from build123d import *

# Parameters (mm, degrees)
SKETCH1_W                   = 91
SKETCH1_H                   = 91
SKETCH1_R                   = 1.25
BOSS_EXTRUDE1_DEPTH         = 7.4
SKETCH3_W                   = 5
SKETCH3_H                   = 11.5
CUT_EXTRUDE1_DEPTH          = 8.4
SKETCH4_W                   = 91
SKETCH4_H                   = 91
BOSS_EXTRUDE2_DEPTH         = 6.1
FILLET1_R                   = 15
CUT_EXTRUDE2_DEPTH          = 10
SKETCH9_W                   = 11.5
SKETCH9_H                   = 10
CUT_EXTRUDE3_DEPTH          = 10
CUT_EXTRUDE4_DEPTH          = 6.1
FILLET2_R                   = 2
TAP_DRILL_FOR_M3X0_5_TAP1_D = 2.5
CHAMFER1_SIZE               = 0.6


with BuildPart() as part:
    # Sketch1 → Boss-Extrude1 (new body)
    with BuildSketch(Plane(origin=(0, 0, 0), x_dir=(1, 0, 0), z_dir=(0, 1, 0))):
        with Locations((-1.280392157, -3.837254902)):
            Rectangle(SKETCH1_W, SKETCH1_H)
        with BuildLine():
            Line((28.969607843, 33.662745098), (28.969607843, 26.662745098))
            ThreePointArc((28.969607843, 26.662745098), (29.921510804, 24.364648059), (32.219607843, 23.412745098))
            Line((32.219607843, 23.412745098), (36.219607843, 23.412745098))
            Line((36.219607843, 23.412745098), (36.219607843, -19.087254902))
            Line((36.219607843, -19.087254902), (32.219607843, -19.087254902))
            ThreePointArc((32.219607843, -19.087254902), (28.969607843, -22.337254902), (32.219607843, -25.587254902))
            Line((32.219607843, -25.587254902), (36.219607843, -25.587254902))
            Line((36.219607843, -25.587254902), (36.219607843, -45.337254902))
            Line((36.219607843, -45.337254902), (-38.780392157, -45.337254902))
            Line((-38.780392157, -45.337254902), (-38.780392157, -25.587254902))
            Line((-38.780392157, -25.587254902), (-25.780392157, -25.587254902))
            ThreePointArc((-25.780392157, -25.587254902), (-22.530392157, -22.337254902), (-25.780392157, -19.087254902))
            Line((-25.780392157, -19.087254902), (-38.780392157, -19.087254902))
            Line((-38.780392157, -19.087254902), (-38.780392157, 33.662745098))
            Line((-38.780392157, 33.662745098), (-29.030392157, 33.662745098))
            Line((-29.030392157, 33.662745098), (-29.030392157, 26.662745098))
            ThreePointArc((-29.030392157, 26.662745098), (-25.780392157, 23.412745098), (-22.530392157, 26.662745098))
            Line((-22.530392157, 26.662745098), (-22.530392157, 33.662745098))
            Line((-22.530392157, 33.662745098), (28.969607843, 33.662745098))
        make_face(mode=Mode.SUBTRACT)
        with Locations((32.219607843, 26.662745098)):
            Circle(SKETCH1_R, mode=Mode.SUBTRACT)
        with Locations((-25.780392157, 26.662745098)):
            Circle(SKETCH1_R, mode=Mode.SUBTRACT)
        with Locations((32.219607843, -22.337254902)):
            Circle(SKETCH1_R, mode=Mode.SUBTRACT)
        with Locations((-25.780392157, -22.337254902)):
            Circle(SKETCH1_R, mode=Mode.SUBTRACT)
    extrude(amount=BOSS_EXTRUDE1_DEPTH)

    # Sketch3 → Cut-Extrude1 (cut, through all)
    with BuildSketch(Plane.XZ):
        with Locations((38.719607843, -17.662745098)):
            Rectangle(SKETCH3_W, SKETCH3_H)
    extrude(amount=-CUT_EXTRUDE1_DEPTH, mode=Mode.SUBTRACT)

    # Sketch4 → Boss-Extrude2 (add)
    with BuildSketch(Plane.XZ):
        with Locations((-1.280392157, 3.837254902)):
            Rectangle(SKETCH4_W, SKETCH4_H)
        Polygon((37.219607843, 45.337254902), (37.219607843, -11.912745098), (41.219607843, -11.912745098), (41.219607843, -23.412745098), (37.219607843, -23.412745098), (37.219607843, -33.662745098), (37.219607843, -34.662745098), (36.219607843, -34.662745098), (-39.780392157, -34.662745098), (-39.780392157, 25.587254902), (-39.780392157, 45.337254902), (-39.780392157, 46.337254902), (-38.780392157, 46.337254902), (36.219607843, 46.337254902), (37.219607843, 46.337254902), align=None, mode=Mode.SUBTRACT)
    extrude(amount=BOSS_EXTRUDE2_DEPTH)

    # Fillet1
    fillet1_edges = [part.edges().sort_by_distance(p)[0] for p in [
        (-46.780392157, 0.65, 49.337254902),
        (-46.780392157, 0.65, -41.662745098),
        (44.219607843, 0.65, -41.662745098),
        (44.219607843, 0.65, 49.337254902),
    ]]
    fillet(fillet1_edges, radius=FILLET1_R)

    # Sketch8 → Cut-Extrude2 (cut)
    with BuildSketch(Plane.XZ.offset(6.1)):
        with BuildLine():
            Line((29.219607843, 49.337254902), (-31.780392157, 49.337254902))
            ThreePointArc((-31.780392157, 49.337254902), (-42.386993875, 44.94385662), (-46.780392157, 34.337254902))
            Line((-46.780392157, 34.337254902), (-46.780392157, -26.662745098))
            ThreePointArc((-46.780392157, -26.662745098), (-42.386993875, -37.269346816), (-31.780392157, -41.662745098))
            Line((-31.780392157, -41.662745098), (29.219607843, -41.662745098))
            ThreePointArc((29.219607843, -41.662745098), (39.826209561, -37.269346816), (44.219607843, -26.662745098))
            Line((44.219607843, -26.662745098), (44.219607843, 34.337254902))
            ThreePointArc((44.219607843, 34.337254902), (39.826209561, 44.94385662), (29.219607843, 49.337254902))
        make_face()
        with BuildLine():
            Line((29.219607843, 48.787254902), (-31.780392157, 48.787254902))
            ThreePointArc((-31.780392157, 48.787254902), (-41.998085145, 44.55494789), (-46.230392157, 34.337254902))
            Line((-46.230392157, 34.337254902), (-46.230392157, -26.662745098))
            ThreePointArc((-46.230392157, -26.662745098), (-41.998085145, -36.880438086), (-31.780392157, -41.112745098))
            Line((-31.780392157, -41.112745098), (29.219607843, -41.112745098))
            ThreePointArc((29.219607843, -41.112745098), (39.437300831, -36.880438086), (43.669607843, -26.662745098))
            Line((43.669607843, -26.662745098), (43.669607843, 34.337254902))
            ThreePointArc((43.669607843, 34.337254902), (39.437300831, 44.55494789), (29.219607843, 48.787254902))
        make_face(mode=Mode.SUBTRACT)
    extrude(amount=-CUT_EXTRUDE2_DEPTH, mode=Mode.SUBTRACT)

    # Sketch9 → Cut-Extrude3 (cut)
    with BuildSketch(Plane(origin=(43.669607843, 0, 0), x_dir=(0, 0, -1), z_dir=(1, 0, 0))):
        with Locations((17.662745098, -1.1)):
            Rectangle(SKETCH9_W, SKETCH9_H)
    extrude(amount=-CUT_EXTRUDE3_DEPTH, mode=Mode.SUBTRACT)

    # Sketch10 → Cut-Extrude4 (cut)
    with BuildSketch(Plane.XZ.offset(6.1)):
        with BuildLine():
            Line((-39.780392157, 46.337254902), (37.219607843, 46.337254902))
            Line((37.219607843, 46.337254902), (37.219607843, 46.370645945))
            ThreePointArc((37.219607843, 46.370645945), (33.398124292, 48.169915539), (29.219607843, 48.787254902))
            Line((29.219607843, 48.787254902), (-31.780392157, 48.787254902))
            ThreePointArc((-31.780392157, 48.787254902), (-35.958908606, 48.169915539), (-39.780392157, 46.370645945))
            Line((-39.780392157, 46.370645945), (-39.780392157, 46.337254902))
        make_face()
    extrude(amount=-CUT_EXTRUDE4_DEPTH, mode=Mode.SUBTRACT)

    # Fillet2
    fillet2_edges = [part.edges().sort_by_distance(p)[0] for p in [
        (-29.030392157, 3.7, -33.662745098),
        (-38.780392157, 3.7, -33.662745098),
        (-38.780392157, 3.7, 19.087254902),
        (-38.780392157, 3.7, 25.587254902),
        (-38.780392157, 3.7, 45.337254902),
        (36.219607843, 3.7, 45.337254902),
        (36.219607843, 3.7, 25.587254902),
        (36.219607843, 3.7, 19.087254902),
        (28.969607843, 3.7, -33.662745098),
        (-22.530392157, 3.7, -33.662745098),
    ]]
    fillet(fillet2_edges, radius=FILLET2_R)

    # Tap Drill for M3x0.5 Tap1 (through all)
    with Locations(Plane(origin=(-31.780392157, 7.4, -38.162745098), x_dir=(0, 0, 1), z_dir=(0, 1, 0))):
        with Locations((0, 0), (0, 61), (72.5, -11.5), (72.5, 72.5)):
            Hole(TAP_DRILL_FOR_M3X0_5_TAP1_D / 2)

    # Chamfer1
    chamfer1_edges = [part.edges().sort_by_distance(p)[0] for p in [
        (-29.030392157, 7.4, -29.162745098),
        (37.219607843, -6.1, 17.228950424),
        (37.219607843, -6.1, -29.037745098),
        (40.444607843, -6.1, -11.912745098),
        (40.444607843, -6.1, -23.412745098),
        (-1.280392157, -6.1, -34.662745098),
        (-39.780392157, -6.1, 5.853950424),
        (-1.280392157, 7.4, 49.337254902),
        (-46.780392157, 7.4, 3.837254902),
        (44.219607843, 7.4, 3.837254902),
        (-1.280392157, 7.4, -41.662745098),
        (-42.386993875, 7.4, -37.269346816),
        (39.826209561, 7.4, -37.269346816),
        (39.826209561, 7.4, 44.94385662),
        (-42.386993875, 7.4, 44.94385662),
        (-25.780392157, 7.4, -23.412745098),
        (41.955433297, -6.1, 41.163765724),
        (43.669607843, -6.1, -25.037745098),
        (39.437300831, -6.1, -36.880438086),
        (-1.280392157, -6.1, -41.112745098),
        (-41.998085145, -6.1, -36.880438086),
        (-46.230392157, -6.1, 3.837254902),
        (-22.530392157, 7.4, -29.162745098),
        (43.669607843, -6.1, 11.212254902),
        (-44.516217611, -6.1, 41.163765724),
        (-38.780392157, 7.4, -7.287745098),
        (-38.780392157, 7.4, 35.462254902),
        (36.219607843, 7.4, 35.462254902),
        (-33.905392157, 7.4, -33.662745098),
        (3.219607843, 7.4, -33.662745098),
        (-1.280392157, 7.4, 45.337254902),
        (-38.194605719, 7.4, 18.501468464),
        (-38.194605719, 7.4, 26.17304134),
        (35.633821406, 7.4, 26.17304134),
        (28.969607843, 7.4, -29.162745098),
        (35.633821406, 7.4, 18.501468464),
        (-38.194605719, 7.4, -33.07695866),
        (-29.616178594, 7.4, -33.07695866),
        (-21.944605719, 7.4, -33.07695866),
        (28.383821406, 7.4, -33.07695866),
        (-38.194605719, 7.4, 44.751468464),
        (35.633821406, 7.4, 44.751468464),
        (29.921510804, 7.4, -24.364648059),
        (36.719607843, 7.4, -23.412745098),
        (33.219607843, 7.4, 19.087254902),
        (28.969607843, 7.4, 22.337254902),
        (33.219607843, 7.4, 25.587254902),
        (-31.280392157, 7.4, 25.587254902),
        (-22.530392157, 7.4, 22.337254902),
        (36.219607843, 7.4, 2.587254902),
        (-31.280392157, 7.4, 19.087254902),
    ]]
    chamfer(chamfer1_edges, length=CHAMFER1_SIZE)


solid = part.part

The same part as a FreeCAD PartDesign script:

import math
import FreeCAD as App
import Part
import Sketcher
from FreeCAD import Vector


def edges_at(feature, points):
    """Names of the edges that pass closest to the given points."""
    edges = feature.Shape.Edges
    near = lambda p: min(range(len(edges)), key=lambda i: edges[i].distToShape(Part.Vertex(*p))[0])
    return sorted({f"Edge{near(p) + 1}" for p in points})


def add_polygon(sketch, points):
    """Adds a closed chain of lines whose ends are joined by coincident constraints."""
    first, n = sketch.GeometryCount, len(points)
    for a, b in zip(points, points[1:] + points[:1]):
        sketch.addGeometry(Part.LineSegment(App.Vector(*a, 0), App.Vector(*b, 0)), False)
    for i in range(n):
        sketch.addConstraint(Sketcher.Constraint("Coincident", first + i, 2, first + (i + 1) % n, 1))

doc = App.newDocument("Part")
params = doc.addObject("Spreadsheet::Sheet", "Params")
for row, (alias, value) in enumerate([
    ("sketch1_diameter", "2.5 mm"),
    ("sketch1_width", "91 mm"),
    ("sketch1_width2", "4 mm"),
    ("sketch1_width3", "75 mm"),
    ("sketch1_width4", "13 mm"),
    ("pad1_length", "7.4 mm"),
    ("sketch2_width", "5 mm"),
    ("sketch2_height", "11.5 mm"),
    ("sketch3_width", "91 mm"),
    ("sketch3_width2", "4 mm"),
    ("sketch3_width3", "77 mm"),
    ("sketch3_height", "81 mm"),
    ("sketch3_height2", "11.5 mm"),
    ("pad2_length", "6.1 mm"),
    ("fillet_radius", "15 mm"),
    ("sketch4_radius", "15 mm"),
    ("sketch4_width", "61 mm"),
    ("sketch4_radius2", "14.45 mm"),
    ("pocket2_length", "10 mm"),
    ("sketch5_width", "10 mm"),
    ("sketch5_height", "11.5 mm"),
    ("pocket3_length", "10 mm"),
    ("sketch6_width", "77 mm"),
    ("sketch6_width2", "61 mm"),
    ("sketch6_radius", "14.45 mm"),
    ("pocket4_length", "6.1 mm"),
    ("fillet2_radius", "2 mm"),
    ("sketch7_diameter", "2.5 mm"),
    ("hole_diameter", "2.5 mm"),
    ("chamfer_size", "0.6 mm"),
], start=1):
    params.set(f"A{row}", alias)
    params.set(f"B{row}", "=" + value)
    params.setAlias(f"B{row}", alias)

body = doc.addObject("PartDesign::Body", "Body")

sketch1 = body.newObject("Sketcher::SketchObject", "Sketch")
sketch1.AttachmentSupport = (doc.getObject("XZ_Plane"), [""])
sketch1.MapMode = "FlatFace"
add_polygon(sketch1, [(-46.8, -41.7), (-46.8, 49.3), (44.2, 49.3), (44.2, -41.7)])
sketch1.addGeometry(Part.Circle(Vector(-25.8, 22.3, 0), Vector(0, 0, 1), 1.2), False)
sketch1.addGeometry(Part.Circle(Vector(32.2, 22.3, 0), Vector(0, 0, 1), 1.2), False)
sketch1.addGeometry(Part.Circle(Vector(-25.8, -26.7, 0), Vector(0, 0, 1), 1.2), False)
sketch1.addGeometry(Part.LineSegment(Vector(-22.5, -33.7, 0), Vector(29, -33.7, 0)), False)
sketch1.addGeometry(Part.LineSegment(Vector(29, -33.7, 0), Vector(29, -26.7, 0)), False)
sketch1.addGeometry(Part.ArcOfCircle(Part.Circle(Vector(32.2, -26.7, 0), Vector(0, 0, 1), 3.2), math.radians(90), math.radians(180)), False)
sketch1.addGeometry(Part.LineSegment(Vector(32.2, -23.4, 0), Vector(36.2, -23.4, 0)), False)
sketch1.addGeometry(Part.LineSegment(Vector(36.2, -23.4, 0), Vector(36.2, 19.1, 0)), False)
sketch1.addGeometry(Part.LineSegment(Vector(36.2, 19.1, 0), Vector(32.2, 19.1, 0)), False)
sketch1.addGeometry(Part.ArcOfCircle(Part.Circle(Vector(32.2, 22.3, 0), Vector(0, 0, 1), 3.2), math.radians(90), math.radians(270)), False)
sketch1.addGeometry(Part.LineSegment(Vector(32.2, 25.6, 0), Vector(36.2, 25.6, 0)), False)
sketch1.addGeometry(Part.LineSegment(Vector(36.2, 25.6, 0), Vector(36.2, 45.3, 0)), False)
sketch1.addGeometry(Part.LineSegment(Vector(36.2, 45.3, 0), Vector(-38.8, 45.3, 0)), False)
sketch1.addGeometry(Part.LineSegment(Vector(-38.8, 45.3, 0), Vector(-38.8, 25.6, 0)), False)
sketch1.addGeometry(Part.LineSegment(Vector(-38.8, 25.6, 0), Vector(-25.8, 25.6, 0)), False)
sketch1.addGeometry(Part.ArcOfCircle(Part.Circle(Vector(-25.8, 22.3, 0), Vector(0, 0, 1), 3.2), math.radians(-90), math.radians(90)), False)
sketch1.addGeometry(Part.LineSegment(Vector(-25.8, 19.1, 0), Vector(-38.8, 19.1, 0)), False)
sketch1.addGeometry(Part.LineSegment(Vector(-38.8, 19.1, 0), Vector(-38.8, -33.7, 0)), False)
sketch1.addGeometry(Part.LineSegment(Vector(-38.8, -33.7, 0), Vector(-29, -33.7, 0)), False)
sketch1.addGeometry(Part.LineSegment(Vector(-29, -33.7, 0), Vector(-29, -26.7, 0)), False)
sketch1.addGeometry(Part.ArcOfCircle(Part.Circle(Vector(-25.8, -26.7, 0), Vector(0, 0, 1), 3.2), math.radians(0), math.radians(180)), False)
sketch1.addGeometry(Part.LineSegment(Vector(-22.5, -26.7, 0), Vector(-22.5, -33.7, 0)), False)
sketch1.addGeometry(Part.Circle(Vector(32.2, -26.7, 0), Vector(0, 0, 1), 1.2), False)
sketch1.addConstraint(Sketcher.Constraint("Coincident", 7, 2, 8, 1))
sketch1.addConstraint(Sketcher.Constraint("Tangent", 8, 2, 9, 2))
sketch1.addConstraint(Sketcher.Constraint("Tangent", 9, 1, 10, 1))
sketch1.addConstraint(Sketcher.Constraint("Coincident", 10, 2, 11, 1))
sketch1.addConstraint(Sketcher.Constraint("Coincident", 11, 2, 12, 1))
sketch1.addConstraint(Sketcher.Constraint("Tangent", 12, 2, 13, 2))
sketch1.addConstraint(Sketcher.Constraint("Tangent", 13, 1, 14, 1))
sketch1.addConstraint(Sketcher.Constraint("Coincident", 14, 2, 15, 1))
sketch1.addConstraint(Sketcher.Constraint("Coincident", 15, 2, 16, 1))
sketch1.addConstraint(Sketcher.Constraint("Coincident", 16, 2, 17, 1))
sketch1.addConstraint(Sketcher.Constraint("Coincident", 17, 2, 18, 1))
sketch1.addConstraint(Sketcher.Constraint("Tangent", 18, 2, 19, 2))
sketch1.addConstraint(Sketcher.Constraint("Tangent", 19, 1, 20, 1))
sketch1.addConstraint(Sketcher.Constraint("Coincident", 20, 2, 21, 1))
sketch1.addConstraint(Sketcher.Constraint("Coincident", 21, 2, 22, 1))
sketch1.addConstraint(Sketcher.Constraint("Coincident", 22, 2, 23, 1))
sketch1.addConstraint(Sketcher.Constraint("Tangent", 23, 2, 24, 2))
sketch1.addConstraint(Sketcher.Constraint("Tangent", 24, 1, 25, 1))
sketch1.addConstraint(Sketcher.Constraint("Coincident", 25, 2, 7, 1))
sketch1.addConstraint(Sketcher.Constraint("Vertical", 0))
sketch1.addConstraint(Sketcher.Constraint("Horizontal", 1))
sketch1.addConstraint(Sketcher.Constraint("Vertical", 2))
sketch1.addConstraint(Sketcher.Constraint("Horizontal", 3))
sketch1.addConstraint(Sketcher.Constraint("Horizontal", 7))
sketch1.addConstraint(Sketcher.Constraint("Vertical", 8))
sketch1.addConstraint(Sketcher.Constraint("Horizontal", 10))
sketch1.addConstraint(Sketcher.Constraint("Vertical", 11))
sketch1.addConstraint(Sketcher.Constraint("Horizontal", 12))
sketch1.addConstraint(Sketcher.Constraint("Horizontal", 14))
sketch1.addConstraint(Sketcher.Constraint("Vertical", 15))
sketch1.addConstraint(Sketcher.Constraint("Horizontal", 16))
sketch1.addConstraint(Sketcher.Constraint("Vertical", 17))
sketch1.addConstraint(Sketcher.Constraint("Horizontal", 18))
sketch1.addConstraint(Sketcher.Constraint("Horizontal", 20))
sketch1.addConstraint(Sketcher.Constraint("Vertical", 21))
sketch1.addConstraint(Sketcher.Constraint("Horizontal", 22))
sketch1.addConstraint(Sketcher.Constraint("Vertical", 23))
sketch1.addConstraint(Sketcher.Constraint("Vertical", 25))
sketch1.addConstraint(Sketcher.Constraint("Coincident", 13, 3, 5, 3))
sketch1.addConstraint(Sketcher.Constraint("Coincident", 19, 3, 4, 3))
sketch1.addConstraint(Sketcher.Constraint("Coincident", 24, 3, 6, 3))
sketch1.addConstraint(Sketcher.Constraint("Coincident", 26, 3, 9, 3))
sketch1.addConstraint(Sketcher.Constraint("Equal", 4, 5))
sketch1.addConstraint(Sketcher.Constraint("Equal", 5, 6))
sketch1.addConstraint(Sketcher.Constraint("Equal", 9, 13))
sketch1.addConstraint(Sketcher.Constraint("Equal", 13, 19))
sketch1.addConstraint(Sketcher.Constraint("Equal", 19, 24))
sketch1.addConstraint(Sketcher.Constraint("Equal", 6, 26))
sketch1.addConstraint(Sketcher.Constraint("Horizontal", 4, 3, 5, 3))
sketch1.addConstraint(Sketcher.Constraint("Horizontal", 6, 3, 9, 3))
sketch1.addConstraint(Sketcher.Constraint("Horizontal", 7, 2, 21, 2))
sketch1.addConstraint(Sketcher.Constraint("Vertical", 4, 3, 6, 3))
sketch1.addConstraint(Sketcher.Constraint("Vertical", 5, 3, 9, 3))
sketch1.addConstraint(Sketcher.Constraint("Vertical", 11, 2, 14, 2))
sketch1.addConstraint(Sketcher.Constraint("Vertical", 17, 2, 20, 2))
sketch1.addConstraint(Sketcher.Constraint("Equal", 3, 0))
sketch1.addConstraint(Sketcher.Constraint("Diameter", 4, 2.5))
sketch1.addConstraint(Sketcher.Constraint("DistanceX", 1, 1, 1, 2, 91.0))
sketch1.addConstraint(Sketcher.Constraint("DistanceX", 10, 1, 10, 2, 4.0))
sketch1.addConstraint(Sketcher.Constraint("DistanceX", 16, 2, 16, 1, 75.0))
sketch1.addConstraint(Sketcher.Constraint("DistanceX", 18, 1, 18, 2, 13.0))
sketch1.addConstraint(Sketcher.Constraint("DistanceY", 8, 1, 8, 2, 7.0))
sketch1.addConstraint(Sketcher.Constraint("Radius", 9, 3.25))
sketch1.addConstraint(Sketcher.Constraint("DistanceY", 11, 1, 11, 2, 42.5))
sketch1.addConstraint(Sketcher.Constraint("DistanceX", 0, 2, 4, 3, 21.0))
sketch1.addConstraint(Sketcher.Constraint("DistanceY", 4, 3, 0, 2, 27.0))
sketch1.addConstraint(Sketcher.Constraint("DistanceY", 15, 2, 1, 2, 4.0))
sketch1.addConstraint(Sketcher.Constraint("DistanceX", 4, 3, -1, 1, 25.780392))
sketch1.addConstraint(Sketcher.Constraint("DistanceY", -1, 1, 4, 3, 22.337255))
sketch1.setExpression("Constraints[60]", "Params.sketch1_diameter")
sketch1.setExpression("Constraints[61]", "Params.sketch1_width")
sketch1.setExpression("Constraints[62]", "Params.sketch1_width2")
sketch1.setExpression("Constraints[63]", "Params.sketch1_width3")
sketch1.setExpression("Constraints[64]", "Params.sketch1_width4")
pad1 = body.newObject("PartDesign::Pad", "Pad")
pad1.Profile = sketch1
pad1.setExpression("Length", "Params.pad1_length")
pad1.Reversed = True

sketch2 = body.newObject("Sketcher::SketchObject", "Sketch001")
sketch2.AttachmentSupport = (doc.getObject("XZ_Plane"), [""])
sketch2.MapMode = "FlatFace"
add_polygon(sketch2, [(36, -12), (36, -23), (41, -23), (41, -12)])
sketch2.addConstraint(Sketcher.Constraint("Vertical", 0))
sketch2.addConstraint(Sketcher.Constraint("Horizontal", 1))
sketch2.addConstraint(Sketcher.Constraint("Vertical", 2))
sketch2.addConstraint(Sketcher.Constraint("Horizontal", 3))
sketch2.addConstraint(Sketcher.Constraint("DistanceX", 1, 1, 1, 2, 5.0))
sketch2.addConstraint(Sketcher.Constraint("DistanceY", 0, 2, 0, 1, 11.5))
sketch2.addConstraint(Sketcher.Constraint("DistanceX", -1, 1, 0, 2, 36.219608))
sketch2.addConstraint(Sketcher.Constraint("DistanceY", 0, 2, -1, 1, 23.412745))
sketch2.setExpression("Constraints[8]", "Params.sketch2_width")
sketch2.setExpression("Constraints[9]", "Params.sketch2_height")
pocket1 = body.newObject("PartDesign::Pocket", "Pocket")
pocket1.Profile = sketch2
pocket1.Type = "ThroughAll"

sketch3 = body.newObject("Sketcher::SketchObject", "Sketch002")
sketch3.AttachmentSupport = (doc.getObject("XZ_Plane"), [""])
sketch3.MapMode = "FlatFace"
add_polygon(sketch3, [(-46.8, 49.3), (-46.8, -41.7), (44.2, -41.7), (44.2, 49.3)])
add_polygon(sketch3, [(37.2, 46.3), (37.2, -11.9), (41.2, -11.9), (41.2, -23.4), (37.2, -23.4), (37.2, -34.7), (-39.8, -34.7), (-39.8, 46.3)])
sketch3.addConstraint(Sketcher.Constraint("Vertical", 0))
sketch3.addConstraint(Sketcher.Constraint("Horizontal", 1))
sketch3.addConstraint(Sketcher.Constraint("Vertical", 2))
sketch3.addConstraint(Sketcher.Constraint("Horizontal", 3))
sketch3.addConstraint(Sketcher.Constraint("Vertical", 4))
sketch3.addConstraint(Sketcher.Constraint("Horizontal", 5))
sketch3.addConstraint(Sketcher.Constraint("Vertical", 6))
sketch3.addConstraint(Sketcher.Constraint("Horizontal", 7))
sketch3.addConstraint(Sketcher.Constraint("Vertical", 8))
sketch3.addConstraint(Sketcher.Constraint("Horizontal", 9))
sketch3.addConstraint(Sketcher.Constraint("Vertical", 10))
sketch3.addConstraint(Sketcher.Constraint("Horizontal", 11))
sketch3.addConstraint(Sketcher.Constraint("Vertical", 4, 2, 7, 2))
sketch3.addConstraint(Sketcher.Constraint("Equal", 3, 0))
sketch3.addConstraint(Sketcher.Constraint("DistanceX", 1, 1, 1, 2, 91.0))
sketch3.addConstraint(Sketcher.Constraint("DistanceX", 5, 1, 5, 2, 4.0))
sketch3.addConstraint(Sketcher.Constraint("DistanceX", 9, 2, 9, 1, 77.0))
sketch3.addConstraint(Sketcher.Constraint("DistanceY", 10, 1, 10, 2, 81.0))
sketch3.addConstraint(Sketcher.Constraint("DistanceY", 6, 2, 6, 1, 11.5))
sketch3.addConstraint(Sketcher.Constraint("DistanceX", 4, 2, 1, 2, 7.0))
sketch3.addConstraint(Sketcher.Constraint("DistanceY", 1, 2, 8, 2, 7.0))
sketch3.addConstraint(Sketcher.Constraint("DistanceY", 4, 2, 4, 1, 58.25))
sketch3.addConstraint(Sketcher.Constraint("DistanceX", 0, 2, -1, 1, 46.780392))
sketch3.addConstraint(Sketcher.Constraint("DistanceY", 0, 2, -1, 1, 41.662745))
sketch3.setExpression("Constraints[26]", "Params.sketch3_width")
sketch3.setExpression("Constraints[27]", "Params.sketch3_width2")
sketch3.setExpression("Constraints[28]", "Params.sketch3_width3")
sketch3.setExpression("Constraints[29]", "Params.sketch3_height")
sketch3.setExpression("Constraints[30]", "Params.sketch3_height2")
pad2 = body.newObject("PartDesign::Pad", "Pad001")
pad2.Profile = sketch3
pad2.setExpression("Length", "Params.pad2_length")
doc.recompute()

fillet = body.newObject("PartDesign::Fillet", "Fillet")
fillet.Base = (pad2, edges_at(pad2, [
    (-46.78, 0.65, 49.337),
    (-46.78, 0.65, -41.663),
    (44.22, 0.65, -41.663),
    (44.22, 0.65, 49.337),
]))
fillet.setExpression("Radius", "Params.fillet_radius")

sketch4 = body.newObject("Sketcher::SketchObject", "Sketch003")
sketch4.AttachmentSupport = (doc.getObject("XZ_Plane"), [""])
sketch4.MapMode = "FlatFace"
sketch4.AttachmentOffset = App.Placement(Vector(0, 0, 6.1), App.Rotation())
sketch4.addGeometry(Part.LineSegment(Vector(29, 49, 0), Vector(-32, 49, 0)), False)
sketch4.addGeometry(Part.ArcOfCircle(Part.Circle(Vector(-32, 34, 0), Vector(0, 0, 1), 15), math.radians(90), math.radians(180)), False)
sketch4.addGeometry(Part.LineSegment(Vector(-47, 34, 0), Vector(-47, -27, 0)), False)
sketch4.addGeometry(Part.ArcOfCircle(Part.Circle(Vector(-32, -27, 0), Vector(0, 0, 1), 15), math.radians(180), math.radians(270)), False)
sketch4.addGeometry(Part.LineSegment(Vector(-32, -42, 0), Vector(29, -42, 0)), False)
sketch4.addGeometry(Part.ArcOfCircle(Part.Circle(Vector(29, -27, 0), Vector(0, 0, 1), 15), math.radians(-90), math.radians(0)), False)
sketch4.addGeometry(Part.LineSegment(Vector(44, -27, 0), Vector(44, 34, 0)), False)
sketch4.addGeometry(Part.ArcOfCircle(Part.Circle(Vector(29, 34, 0), Vector(0, 0, 1), 15), math.radians(0), math.radians(90)), False)
sketch4.addGeometry(Part.LineSegment(Vector(-32, 49, 0), Vector(29, 49, 0)), False)
sketch4.addGeometry(Part.ArcOfCircle(Part.Circle(Vector(29, 34, 0), Vector(0, 0, 1), 14), math.radians(0), math.radians(90)), False)
sketch4.addGeometry(Part.LineSegment(Vector(44, 34, 0), Vector(44, -27, 0)), False)
sketch4.addGeometry(Part.ArcOfCircle(Part.Circle(Vector(29, -27, 0), Vector(0, 0, 1), 14), math.radians(-90), math.radians(0)), False)
sketch4.addGeometry(Part.LineSegment(Vector(29, -41, 0), Vector(-32, -41, 0)), False)
sketch4.addGeometry(Part.ArcOfCircle(Part.Circle(Vector(-32, -27, 0), Vector(0, 0, 1), 14), math.radians(180), math.radians(270)), False)
sketch4.addGeometry(Part.LineSegment(Vector(-46, -27, 0), Vector(-46, 34, 0)), False)
sketch4.addGeometry(Part.ArcOfCircle(Part.Circle(Vector(-32, 34, 0), Vector(0, 0, 1), 14), math.radians(90), math.radians(180)), False)
sketch4.addConstraint(Sketcher.Constraint("Tangent", 0, 2, 1, 1))
sketch4.addConstraint(Sketcher.Constraint("Tangent", 1, 2, 2, 1))
sketch4.addConstraint(Sketcher.Constraint("Tangent", 2, 2, 3, 1))
sketch4.addConstraint(Sketcher.Constraint("Tangent", 3, 2, 4, 1))
sketch4.addConstraint(Sketcher.Constraint("Tangent", 4, 2, 5, 1))
sketch4.addConstraint(Sketcher.Constraint("Tangent", 5, 2, 6, 1))
sketch4.addConstraint(Sketcher.Constraint("Tangent", 6, 2, 7, 1))
sketch4.addConstraint(Sketcher.Constraint("Tangent", 7, 2, 0, 1))
sketch4.addConstraint(Sketcher.Constraint("Tangent", 8, 2, 9, 2))
sketch4.addConstraint(Sketcher.Constraint("Tangent", 9, 1, 10, 1))
sketch4.addConstraint(Sketcher.Constraint("Tangent", 10, 2, 11, 2))
sketch4.addConstraint(Sketcher.Constraint("Tangent", 11, 1, 12, 1))
sketch4.addConstraint(Sketcher.Constraint("Tangent", 12, 2, 13, 2))
sketch4.addConstraint(Sketcher.Constraint("Tangent", 13, 1, 14, 1))
sketch4.addConstraint(Sketcher.Constraint("Tangent", 14, 2, 15, 2))
sketch4.addConstraint(Sketcher.Constraint("Tangent", 15, 1, 8, 1))
sketch4.addConstraint(Sketcher.Constraint("Horizontal", 0))
sketch4.addConstraint(Sketcher.Constraint("Vertical", 2))
sketch4.addConstraint(Sketcher.Constraint("Horizontal", 4))
sketch4.addConstraint(Sketcher.Constraint("Vertical", 6))
sketch4.addConstraint(Sketcher.Constraint("Horizontal", 8))
sketch4.addConstraint(Sketcher.Constraint("Vertical", 10))
sketch4.addConstraint(Sketcher.Constraint("Horizontal", 12))
sketch4.addConstraint(Sketcher.Constraint("Vertical", 14))
sketch4.addConstraint(Sketcher.Constraint("Coincident", 9, 3, 7, 3))
sketch4.addConstraint(Sketcher.Constraint("Coincident", 11, 3, 5, 3))
sketch4.addConstraint(Sketcher.Constraint("Coincident", 13, 3, 3, 3))
sketch4.addConstraint(Sketcher.Constraint("Equal", 1, 3))
sketch4.addConstraint(Sketcher.Constraint("Equal", 3, 5))
sketch4.addConstraint(Sketcher.Constraint("Equal", 5, 7))
sketch4.addConstraint(Sketcher.Constraint("Equal", 13, 15))
sketch4.addConstraint(Sketcher.Constraint("Equal", 12, 2))
sketch4.addConstraint(Sketcher.Constraint("Radius", 1, 15.0))
sketch4.addConstraint(Sketcher.Constraint("DistanceX", 0, 2, 0, 1, 61.0))
sketch4.addConstraint(Sketcher.Constraint("Radius", 9, 14.45))
sketch4.addConstraint(Sketcher.Constraint("DistanceX", 1, 3, -1, 1, 31.780392))
sketch4.addConstraint(Sketcher.Constraint("DistanceY", -1, 1, 1, 3, 34.337255))
sketch4.setExpression("Constraints[32]", "Params.sketch4_radius")
sketch4.setExpression("Constraints[33]", "Params.sketch4_width")
sketch4.setExpression("Constraints[34]", "Params.sketch4_radius2")
pocket2 = body.newObject("PartDesign::Pocket", "Pocket001")
pocket2.Profile = sketch4
pocket2.setExpression("Length", "Params.pocket2_length")

sketch5 = body.newObject("Sketcher::SketchObject", "Sketch004")
sketch5.AttachmentSupport = (doc.getObject("YZ_Plane"), [""])
sketch5.MapMode = "FlatFace"
sketch5.AttachmentOffset = App.Placement(Vector(0, 0, 43.669608), App.Rotation())
add_polygon(sketch5, [(4, -12), (-6, -12), (-6, -23), (4, -23)])
sketch5.addConstraint(Sketcher.Constraint("Horizontal", 0))
sketch5.addConstraint(Sketcher.Constraint("Vertical", 1))
sketch5.addConstraint(Sketcher.Constraint("Horizontal", 2))
sketch5.addConstraint(Sketcher.Constraint("Vertical", 3))
sketch5.addConstraint(Sketcher.Constraint("DistanceX", 0, 2, 0, 1, 10.0))
sketch5.addConstraint(Sketcher.Constraint("DistanceY", 1, 2, 1, 1, 11.5))
sketch5.addConstraint(Sketcher.Constraint("DistanceX", 0, 2, -1, 1, 6.1))
sketch5.addConstraint(Sketcher.Constraint("DistanceY", 0, 2, -1, 1, 11.912745))
sketch5.setExpression("Constraints[8]", "Params.sketch5_width")
sketch5.setExpression("Constraints[9]", "Params.sketch5_height")
pocket3 = body.newObject("PartDesign::Pocket", "Pocket002")
pocket3.Profile = sketch5
pocket3.setExpression("Length", "Params.pocket3_length")

sketch6 = body.newObject("Sketcher::SketchObject", "Sketch005")
sketch6.AttachmentSupport = (doc.getObject("XZ_Plane"), [""])
sketch6.MapMode = "FlatFace"
sketch6.AttachmentOffset = App.Placement(Vector(0, 0, 6.1), App.Rotation())
sketch6.addGeometry(Part.LineSegment(Vector(-39.78, 46.337, 0), Vector(37.22, 46.337, 0)), False)
sketch6.addGeometry(Part.LineSegment(Vector(37.22, 46.337, 0), Vector(37.22, 46.371, 0)), False)
sketch6.addGeometry(Part.ArcOfCircle(Part.Circle(Vector(29.22, 34.337, 0), Vector(0, 0, 1), 14.45), math.radians(56), math.radians(90)), False)
sketch6.addGeometry(Part.LineSegment(Vector(29.22, 48.787, 0), Vector(-31.78, 48.787, 0)), False)
sketch6.addGeometry(Part.ArcOfCircle(Part.Circle(Vector(-31.78, 34.337, 0), Vector(0, 0, 1), 14.45), math.radians(90), math.radians(124)), False)
sketch6.addGeometry(Part.LineSegment(Vector(-39.78, 46.371, 0), Vector(-39.78, 46.337, 0)), False)
sketch6.addConstraint(Sketcher.Constraint("Coincident", 0, 2, 1, 1))
sketch6.addConstraint(Sketcher.Constraint("Coincident", 1, 2, 2, 1))
sketch6.addConstraint(Sketcher.Constraint("Tangent", 2, 2, 3, 1))
sketch6.addConstraint(Sketcher.Constraint("Tangent", 3, 2, 4, 1))
sketch6.addConstraint(Sketcher.Constraint("Coincident", 4, 2, 5, 1))
sketch6.addConstraint(Sketcher.Constraint("Coincident", 5, 2, 0, 1))
sketch6.addConstraint(Sketcher.Constraint("Horizontal", 0))
sketch6.addConstraint(Sketcher.Constraint("Vertical", 1))
sketch6.addConstraint(Sketcher.Constraint("Horizontal", 3))
sketch6.addConstraint(Sketcher.Constraint("Vertical", 5))
sketch6.addConstraint(Sketcher.Constraint("Equal", 2, 4))
sketch6.addConstraint(Sketcher.Constraint("Horizontal", 1, 2, 4, 2))
sketch6.addConstraint(Sketcher.Constraint("DistanceX", 0, 1, 0, 2, 77.0))
sketch6.addConstraint(Sketcher.Constraint("DistanceX", 3, 2, 3, 1, 61.0))
sketch6.addConstraint(Sketcher.Constraint("Radius", 2, 14.45))
sketch6.addConstraint(Sketcher.Constraint("DistanceY", 2, 3, 0, 2, 12.0))
sketch6.addConstraint(Sketcher.Constraint("DistanceX", -1, 1, 2, 3, 29.219608))
sketch6.addConstraint(Sketcher.Constraint("DistanceY", -1, 1, 2, 3, 34.337255))
sketch6.setExpression("Constraints[12]", "Params.sketch6_width")
sketch6.setExpression("Constraints[13]", "Params.sketch6_width2")
sketch6.setExpression("Constraints[14]", "Params.sketch6_radius")
pocket4 = body.newObject("PartDesign::Pocket", "Pocket003")
pocket4.Profile = sketch6
pocket4.setExpression("Length", "Params.pocket4_length")
doc.recompute()

fillet2 = body.newObject("PartDesign::Fillet", "Fillet001")
fillet2.Base = (pocket4, edges_at(pocket4, [
    (-29.03, 3.7, -33.663),
    (-38.78, 3.7, -33.663),
    (-38.78, 3.7, 19.087),
    (-38.78, 3.7, 25.587),
    (-38.78, 3.7, 45.337),
    (36.22, 3.7, 45.337),
    (36.22, 3.7, 25.587),
    (36.22, 3.7, 19.087),
    (28.97, 3.7, -33.663),
    (-22.53, 3.7, -33.663),
]))
fillet2.setExpression("Radius", "Params.fillet2_radius")

sketch7 = body.newObject("Sketcher::SketchObject", "Sketch006")
sketch7.AttachmentSupport = (doc.getObject("XZ_Plane"), [""])
sketch7.MapMode = "FlatFace"
sketch7.AttachmentOffset = App.Placement(Vector(0, 0, -7.4), App.Rotation())
sketch7.addGeometry(Part.Circle(Vector(-31.8, -38.2, 0), Vector(0, 0, 1), 1.2), False)
sketch7.addGeometry(Part.Circle(Vector(29.2, -38.2, 0), Vector(0, 0, 1), 1.2), False)
sketch7.addGeometry(Part.Circle(Vector(-43.3, 34.3, 0), Vector(0, 0, 1), 1.2), False)
sketch7.addGeometry(Part.Circle(Vector(40.7, 34.3, 0), Vector(0, 0, 1), 1.2), False)
sketch7.addConstraint(Sketcher.Constraint("Equal", 0, 1))
sketch7.addConstraint(Sketcher.Constraint("Equal", 1, 2))
sketch7.addConstraint(Sketcher.Constraint("Equal", 2, 3))
sketch7.addConstraint(Sketcher.Constraint("Horizontal", 0, 3, 1, 3))
sketch7.addConstraint(Sketcher.Constraint("Horizontal", 2, 3, 3, 3))
sketch7.addConstraint(Sketcher.Constraint("Diameter", 0, 2.5))
sketch7.addConstraint(Sketcher.Constraint("DistanceX", 0, 3, 1, 3, 61.0))
sketch7.addConstraint(Sketcher.Constraint("DistanceX", 2, 3, 3, 3, 84.0))
sketch7.addConstraint(Sketcher.Constraint("DistanceX", 2, 3, 0, 3, 11.5))
sketch7.addConstraint(Sketcher.Constraint("DistanceY", 0, 3, 2, 3, 72.5))
sketch7.addConstraint(Sketcher.Constraint("DistanceX", 0, 3, -1, 1, 31.780392))
sketch7.addConstraint(Sketcher.Constraint("DistanceY", 0, 3, -1, 1, 38.162745))
sketch7.setExpression("Constraints[5]", "Params.sketch7_diameter")
doc.recompute()
hole = body.newObject("PartDesign::Hole", "Hole")
hole.Profile = sketch7
hole.ThreadType = "None"
hole.setExpression("Diameter", "Params.hole_diameter")
hole.DepthType = "ThroughAll"
hole.Reversed = True
doc.recompute()

chamfer = body.newObject("PartDesign::Chamfer", "Chamfer")
chamfer.Base = (hole, edges_at(hole, [
    (-29.03, 7.4, -29.163),
    (37.22, -6.1, 17.229),
    (37.22, -6.1, -29.038),
    (40.445, -6.1, -11.913),
    (40.445, -6.1, -23.413),
    (-1.28, -6.1, -34.663),
    (-39.78, -6.1, 5.854),
    (-1.28, 7.4, 49.337),
    (-46.78, 7.4, 3.837),
    (44.22, 7.4, 3.837),
    (-1.28, 7.4, -41.663),
    (-42.387, 7.4, -37.269),
    (39.826, 7.4, -37.269),
    (39.826, 7.4, 44.944),
    (-42.387, 7.4, 44.944),
    (-25.78, 7.4, -23.413),
    (41.955, -6.1, 41.164),
    (43.67, -6.1, -25.038),
    (39.437, -6.1, -36.88),
    (-1.28, -6.1, -41.113),
    (-41.998, -6.1, -36.88),
    (-46.23, -6.1, 3.837),
    (-22.53, 7.4, -29.163),
    (43.67, -6.1, 11.212),
    (-44.516, -6.1, 41.164),
    (-38.78, 7.4, -7.288),
    (-38.78, 7.4, 35.462),
    (36.22, 7.4, 35.462),
    (-33.905, 7.4, -33.663),
    (3.22, 7.4, -33.663),
    (-1.28, 7.4, 45.337),
    (-38.195, 7.4, 18.501),
    (-38.195, 7.4, 26.173),
    (35.634, 7.4, 26.173),
    (28.97, 7.4, -29.163),
    (35.634, 7.4, 18.501),
    (-38.195, 7.4, -33.077),
    (-29.616, 7.4, -33.077),
    (-21.945, 7.4, -33.077),
    (28.384, 7.4, -33.077),
    (-38.195, 7.4, 44.751),
    (35.634, 7.4, 44.751),
    (29.922, 7.4, -24.365),
    (36.72, 7.4, -23.413),
    (33.22, 7.4, 19.087),
    (28.97, 7.4, 22.337),
    (33.22, 7.4, 25.587),
    (-31.28, 7.4, 25.587),
    (-22.53, 7.4, 22.337),
    (36.22, 7.4, 2.587),
    (-31.28, 7.4, 19.087),
]))
chamfer.setExpression("Size", "Params.chamfer_size")

doc.recompute()
